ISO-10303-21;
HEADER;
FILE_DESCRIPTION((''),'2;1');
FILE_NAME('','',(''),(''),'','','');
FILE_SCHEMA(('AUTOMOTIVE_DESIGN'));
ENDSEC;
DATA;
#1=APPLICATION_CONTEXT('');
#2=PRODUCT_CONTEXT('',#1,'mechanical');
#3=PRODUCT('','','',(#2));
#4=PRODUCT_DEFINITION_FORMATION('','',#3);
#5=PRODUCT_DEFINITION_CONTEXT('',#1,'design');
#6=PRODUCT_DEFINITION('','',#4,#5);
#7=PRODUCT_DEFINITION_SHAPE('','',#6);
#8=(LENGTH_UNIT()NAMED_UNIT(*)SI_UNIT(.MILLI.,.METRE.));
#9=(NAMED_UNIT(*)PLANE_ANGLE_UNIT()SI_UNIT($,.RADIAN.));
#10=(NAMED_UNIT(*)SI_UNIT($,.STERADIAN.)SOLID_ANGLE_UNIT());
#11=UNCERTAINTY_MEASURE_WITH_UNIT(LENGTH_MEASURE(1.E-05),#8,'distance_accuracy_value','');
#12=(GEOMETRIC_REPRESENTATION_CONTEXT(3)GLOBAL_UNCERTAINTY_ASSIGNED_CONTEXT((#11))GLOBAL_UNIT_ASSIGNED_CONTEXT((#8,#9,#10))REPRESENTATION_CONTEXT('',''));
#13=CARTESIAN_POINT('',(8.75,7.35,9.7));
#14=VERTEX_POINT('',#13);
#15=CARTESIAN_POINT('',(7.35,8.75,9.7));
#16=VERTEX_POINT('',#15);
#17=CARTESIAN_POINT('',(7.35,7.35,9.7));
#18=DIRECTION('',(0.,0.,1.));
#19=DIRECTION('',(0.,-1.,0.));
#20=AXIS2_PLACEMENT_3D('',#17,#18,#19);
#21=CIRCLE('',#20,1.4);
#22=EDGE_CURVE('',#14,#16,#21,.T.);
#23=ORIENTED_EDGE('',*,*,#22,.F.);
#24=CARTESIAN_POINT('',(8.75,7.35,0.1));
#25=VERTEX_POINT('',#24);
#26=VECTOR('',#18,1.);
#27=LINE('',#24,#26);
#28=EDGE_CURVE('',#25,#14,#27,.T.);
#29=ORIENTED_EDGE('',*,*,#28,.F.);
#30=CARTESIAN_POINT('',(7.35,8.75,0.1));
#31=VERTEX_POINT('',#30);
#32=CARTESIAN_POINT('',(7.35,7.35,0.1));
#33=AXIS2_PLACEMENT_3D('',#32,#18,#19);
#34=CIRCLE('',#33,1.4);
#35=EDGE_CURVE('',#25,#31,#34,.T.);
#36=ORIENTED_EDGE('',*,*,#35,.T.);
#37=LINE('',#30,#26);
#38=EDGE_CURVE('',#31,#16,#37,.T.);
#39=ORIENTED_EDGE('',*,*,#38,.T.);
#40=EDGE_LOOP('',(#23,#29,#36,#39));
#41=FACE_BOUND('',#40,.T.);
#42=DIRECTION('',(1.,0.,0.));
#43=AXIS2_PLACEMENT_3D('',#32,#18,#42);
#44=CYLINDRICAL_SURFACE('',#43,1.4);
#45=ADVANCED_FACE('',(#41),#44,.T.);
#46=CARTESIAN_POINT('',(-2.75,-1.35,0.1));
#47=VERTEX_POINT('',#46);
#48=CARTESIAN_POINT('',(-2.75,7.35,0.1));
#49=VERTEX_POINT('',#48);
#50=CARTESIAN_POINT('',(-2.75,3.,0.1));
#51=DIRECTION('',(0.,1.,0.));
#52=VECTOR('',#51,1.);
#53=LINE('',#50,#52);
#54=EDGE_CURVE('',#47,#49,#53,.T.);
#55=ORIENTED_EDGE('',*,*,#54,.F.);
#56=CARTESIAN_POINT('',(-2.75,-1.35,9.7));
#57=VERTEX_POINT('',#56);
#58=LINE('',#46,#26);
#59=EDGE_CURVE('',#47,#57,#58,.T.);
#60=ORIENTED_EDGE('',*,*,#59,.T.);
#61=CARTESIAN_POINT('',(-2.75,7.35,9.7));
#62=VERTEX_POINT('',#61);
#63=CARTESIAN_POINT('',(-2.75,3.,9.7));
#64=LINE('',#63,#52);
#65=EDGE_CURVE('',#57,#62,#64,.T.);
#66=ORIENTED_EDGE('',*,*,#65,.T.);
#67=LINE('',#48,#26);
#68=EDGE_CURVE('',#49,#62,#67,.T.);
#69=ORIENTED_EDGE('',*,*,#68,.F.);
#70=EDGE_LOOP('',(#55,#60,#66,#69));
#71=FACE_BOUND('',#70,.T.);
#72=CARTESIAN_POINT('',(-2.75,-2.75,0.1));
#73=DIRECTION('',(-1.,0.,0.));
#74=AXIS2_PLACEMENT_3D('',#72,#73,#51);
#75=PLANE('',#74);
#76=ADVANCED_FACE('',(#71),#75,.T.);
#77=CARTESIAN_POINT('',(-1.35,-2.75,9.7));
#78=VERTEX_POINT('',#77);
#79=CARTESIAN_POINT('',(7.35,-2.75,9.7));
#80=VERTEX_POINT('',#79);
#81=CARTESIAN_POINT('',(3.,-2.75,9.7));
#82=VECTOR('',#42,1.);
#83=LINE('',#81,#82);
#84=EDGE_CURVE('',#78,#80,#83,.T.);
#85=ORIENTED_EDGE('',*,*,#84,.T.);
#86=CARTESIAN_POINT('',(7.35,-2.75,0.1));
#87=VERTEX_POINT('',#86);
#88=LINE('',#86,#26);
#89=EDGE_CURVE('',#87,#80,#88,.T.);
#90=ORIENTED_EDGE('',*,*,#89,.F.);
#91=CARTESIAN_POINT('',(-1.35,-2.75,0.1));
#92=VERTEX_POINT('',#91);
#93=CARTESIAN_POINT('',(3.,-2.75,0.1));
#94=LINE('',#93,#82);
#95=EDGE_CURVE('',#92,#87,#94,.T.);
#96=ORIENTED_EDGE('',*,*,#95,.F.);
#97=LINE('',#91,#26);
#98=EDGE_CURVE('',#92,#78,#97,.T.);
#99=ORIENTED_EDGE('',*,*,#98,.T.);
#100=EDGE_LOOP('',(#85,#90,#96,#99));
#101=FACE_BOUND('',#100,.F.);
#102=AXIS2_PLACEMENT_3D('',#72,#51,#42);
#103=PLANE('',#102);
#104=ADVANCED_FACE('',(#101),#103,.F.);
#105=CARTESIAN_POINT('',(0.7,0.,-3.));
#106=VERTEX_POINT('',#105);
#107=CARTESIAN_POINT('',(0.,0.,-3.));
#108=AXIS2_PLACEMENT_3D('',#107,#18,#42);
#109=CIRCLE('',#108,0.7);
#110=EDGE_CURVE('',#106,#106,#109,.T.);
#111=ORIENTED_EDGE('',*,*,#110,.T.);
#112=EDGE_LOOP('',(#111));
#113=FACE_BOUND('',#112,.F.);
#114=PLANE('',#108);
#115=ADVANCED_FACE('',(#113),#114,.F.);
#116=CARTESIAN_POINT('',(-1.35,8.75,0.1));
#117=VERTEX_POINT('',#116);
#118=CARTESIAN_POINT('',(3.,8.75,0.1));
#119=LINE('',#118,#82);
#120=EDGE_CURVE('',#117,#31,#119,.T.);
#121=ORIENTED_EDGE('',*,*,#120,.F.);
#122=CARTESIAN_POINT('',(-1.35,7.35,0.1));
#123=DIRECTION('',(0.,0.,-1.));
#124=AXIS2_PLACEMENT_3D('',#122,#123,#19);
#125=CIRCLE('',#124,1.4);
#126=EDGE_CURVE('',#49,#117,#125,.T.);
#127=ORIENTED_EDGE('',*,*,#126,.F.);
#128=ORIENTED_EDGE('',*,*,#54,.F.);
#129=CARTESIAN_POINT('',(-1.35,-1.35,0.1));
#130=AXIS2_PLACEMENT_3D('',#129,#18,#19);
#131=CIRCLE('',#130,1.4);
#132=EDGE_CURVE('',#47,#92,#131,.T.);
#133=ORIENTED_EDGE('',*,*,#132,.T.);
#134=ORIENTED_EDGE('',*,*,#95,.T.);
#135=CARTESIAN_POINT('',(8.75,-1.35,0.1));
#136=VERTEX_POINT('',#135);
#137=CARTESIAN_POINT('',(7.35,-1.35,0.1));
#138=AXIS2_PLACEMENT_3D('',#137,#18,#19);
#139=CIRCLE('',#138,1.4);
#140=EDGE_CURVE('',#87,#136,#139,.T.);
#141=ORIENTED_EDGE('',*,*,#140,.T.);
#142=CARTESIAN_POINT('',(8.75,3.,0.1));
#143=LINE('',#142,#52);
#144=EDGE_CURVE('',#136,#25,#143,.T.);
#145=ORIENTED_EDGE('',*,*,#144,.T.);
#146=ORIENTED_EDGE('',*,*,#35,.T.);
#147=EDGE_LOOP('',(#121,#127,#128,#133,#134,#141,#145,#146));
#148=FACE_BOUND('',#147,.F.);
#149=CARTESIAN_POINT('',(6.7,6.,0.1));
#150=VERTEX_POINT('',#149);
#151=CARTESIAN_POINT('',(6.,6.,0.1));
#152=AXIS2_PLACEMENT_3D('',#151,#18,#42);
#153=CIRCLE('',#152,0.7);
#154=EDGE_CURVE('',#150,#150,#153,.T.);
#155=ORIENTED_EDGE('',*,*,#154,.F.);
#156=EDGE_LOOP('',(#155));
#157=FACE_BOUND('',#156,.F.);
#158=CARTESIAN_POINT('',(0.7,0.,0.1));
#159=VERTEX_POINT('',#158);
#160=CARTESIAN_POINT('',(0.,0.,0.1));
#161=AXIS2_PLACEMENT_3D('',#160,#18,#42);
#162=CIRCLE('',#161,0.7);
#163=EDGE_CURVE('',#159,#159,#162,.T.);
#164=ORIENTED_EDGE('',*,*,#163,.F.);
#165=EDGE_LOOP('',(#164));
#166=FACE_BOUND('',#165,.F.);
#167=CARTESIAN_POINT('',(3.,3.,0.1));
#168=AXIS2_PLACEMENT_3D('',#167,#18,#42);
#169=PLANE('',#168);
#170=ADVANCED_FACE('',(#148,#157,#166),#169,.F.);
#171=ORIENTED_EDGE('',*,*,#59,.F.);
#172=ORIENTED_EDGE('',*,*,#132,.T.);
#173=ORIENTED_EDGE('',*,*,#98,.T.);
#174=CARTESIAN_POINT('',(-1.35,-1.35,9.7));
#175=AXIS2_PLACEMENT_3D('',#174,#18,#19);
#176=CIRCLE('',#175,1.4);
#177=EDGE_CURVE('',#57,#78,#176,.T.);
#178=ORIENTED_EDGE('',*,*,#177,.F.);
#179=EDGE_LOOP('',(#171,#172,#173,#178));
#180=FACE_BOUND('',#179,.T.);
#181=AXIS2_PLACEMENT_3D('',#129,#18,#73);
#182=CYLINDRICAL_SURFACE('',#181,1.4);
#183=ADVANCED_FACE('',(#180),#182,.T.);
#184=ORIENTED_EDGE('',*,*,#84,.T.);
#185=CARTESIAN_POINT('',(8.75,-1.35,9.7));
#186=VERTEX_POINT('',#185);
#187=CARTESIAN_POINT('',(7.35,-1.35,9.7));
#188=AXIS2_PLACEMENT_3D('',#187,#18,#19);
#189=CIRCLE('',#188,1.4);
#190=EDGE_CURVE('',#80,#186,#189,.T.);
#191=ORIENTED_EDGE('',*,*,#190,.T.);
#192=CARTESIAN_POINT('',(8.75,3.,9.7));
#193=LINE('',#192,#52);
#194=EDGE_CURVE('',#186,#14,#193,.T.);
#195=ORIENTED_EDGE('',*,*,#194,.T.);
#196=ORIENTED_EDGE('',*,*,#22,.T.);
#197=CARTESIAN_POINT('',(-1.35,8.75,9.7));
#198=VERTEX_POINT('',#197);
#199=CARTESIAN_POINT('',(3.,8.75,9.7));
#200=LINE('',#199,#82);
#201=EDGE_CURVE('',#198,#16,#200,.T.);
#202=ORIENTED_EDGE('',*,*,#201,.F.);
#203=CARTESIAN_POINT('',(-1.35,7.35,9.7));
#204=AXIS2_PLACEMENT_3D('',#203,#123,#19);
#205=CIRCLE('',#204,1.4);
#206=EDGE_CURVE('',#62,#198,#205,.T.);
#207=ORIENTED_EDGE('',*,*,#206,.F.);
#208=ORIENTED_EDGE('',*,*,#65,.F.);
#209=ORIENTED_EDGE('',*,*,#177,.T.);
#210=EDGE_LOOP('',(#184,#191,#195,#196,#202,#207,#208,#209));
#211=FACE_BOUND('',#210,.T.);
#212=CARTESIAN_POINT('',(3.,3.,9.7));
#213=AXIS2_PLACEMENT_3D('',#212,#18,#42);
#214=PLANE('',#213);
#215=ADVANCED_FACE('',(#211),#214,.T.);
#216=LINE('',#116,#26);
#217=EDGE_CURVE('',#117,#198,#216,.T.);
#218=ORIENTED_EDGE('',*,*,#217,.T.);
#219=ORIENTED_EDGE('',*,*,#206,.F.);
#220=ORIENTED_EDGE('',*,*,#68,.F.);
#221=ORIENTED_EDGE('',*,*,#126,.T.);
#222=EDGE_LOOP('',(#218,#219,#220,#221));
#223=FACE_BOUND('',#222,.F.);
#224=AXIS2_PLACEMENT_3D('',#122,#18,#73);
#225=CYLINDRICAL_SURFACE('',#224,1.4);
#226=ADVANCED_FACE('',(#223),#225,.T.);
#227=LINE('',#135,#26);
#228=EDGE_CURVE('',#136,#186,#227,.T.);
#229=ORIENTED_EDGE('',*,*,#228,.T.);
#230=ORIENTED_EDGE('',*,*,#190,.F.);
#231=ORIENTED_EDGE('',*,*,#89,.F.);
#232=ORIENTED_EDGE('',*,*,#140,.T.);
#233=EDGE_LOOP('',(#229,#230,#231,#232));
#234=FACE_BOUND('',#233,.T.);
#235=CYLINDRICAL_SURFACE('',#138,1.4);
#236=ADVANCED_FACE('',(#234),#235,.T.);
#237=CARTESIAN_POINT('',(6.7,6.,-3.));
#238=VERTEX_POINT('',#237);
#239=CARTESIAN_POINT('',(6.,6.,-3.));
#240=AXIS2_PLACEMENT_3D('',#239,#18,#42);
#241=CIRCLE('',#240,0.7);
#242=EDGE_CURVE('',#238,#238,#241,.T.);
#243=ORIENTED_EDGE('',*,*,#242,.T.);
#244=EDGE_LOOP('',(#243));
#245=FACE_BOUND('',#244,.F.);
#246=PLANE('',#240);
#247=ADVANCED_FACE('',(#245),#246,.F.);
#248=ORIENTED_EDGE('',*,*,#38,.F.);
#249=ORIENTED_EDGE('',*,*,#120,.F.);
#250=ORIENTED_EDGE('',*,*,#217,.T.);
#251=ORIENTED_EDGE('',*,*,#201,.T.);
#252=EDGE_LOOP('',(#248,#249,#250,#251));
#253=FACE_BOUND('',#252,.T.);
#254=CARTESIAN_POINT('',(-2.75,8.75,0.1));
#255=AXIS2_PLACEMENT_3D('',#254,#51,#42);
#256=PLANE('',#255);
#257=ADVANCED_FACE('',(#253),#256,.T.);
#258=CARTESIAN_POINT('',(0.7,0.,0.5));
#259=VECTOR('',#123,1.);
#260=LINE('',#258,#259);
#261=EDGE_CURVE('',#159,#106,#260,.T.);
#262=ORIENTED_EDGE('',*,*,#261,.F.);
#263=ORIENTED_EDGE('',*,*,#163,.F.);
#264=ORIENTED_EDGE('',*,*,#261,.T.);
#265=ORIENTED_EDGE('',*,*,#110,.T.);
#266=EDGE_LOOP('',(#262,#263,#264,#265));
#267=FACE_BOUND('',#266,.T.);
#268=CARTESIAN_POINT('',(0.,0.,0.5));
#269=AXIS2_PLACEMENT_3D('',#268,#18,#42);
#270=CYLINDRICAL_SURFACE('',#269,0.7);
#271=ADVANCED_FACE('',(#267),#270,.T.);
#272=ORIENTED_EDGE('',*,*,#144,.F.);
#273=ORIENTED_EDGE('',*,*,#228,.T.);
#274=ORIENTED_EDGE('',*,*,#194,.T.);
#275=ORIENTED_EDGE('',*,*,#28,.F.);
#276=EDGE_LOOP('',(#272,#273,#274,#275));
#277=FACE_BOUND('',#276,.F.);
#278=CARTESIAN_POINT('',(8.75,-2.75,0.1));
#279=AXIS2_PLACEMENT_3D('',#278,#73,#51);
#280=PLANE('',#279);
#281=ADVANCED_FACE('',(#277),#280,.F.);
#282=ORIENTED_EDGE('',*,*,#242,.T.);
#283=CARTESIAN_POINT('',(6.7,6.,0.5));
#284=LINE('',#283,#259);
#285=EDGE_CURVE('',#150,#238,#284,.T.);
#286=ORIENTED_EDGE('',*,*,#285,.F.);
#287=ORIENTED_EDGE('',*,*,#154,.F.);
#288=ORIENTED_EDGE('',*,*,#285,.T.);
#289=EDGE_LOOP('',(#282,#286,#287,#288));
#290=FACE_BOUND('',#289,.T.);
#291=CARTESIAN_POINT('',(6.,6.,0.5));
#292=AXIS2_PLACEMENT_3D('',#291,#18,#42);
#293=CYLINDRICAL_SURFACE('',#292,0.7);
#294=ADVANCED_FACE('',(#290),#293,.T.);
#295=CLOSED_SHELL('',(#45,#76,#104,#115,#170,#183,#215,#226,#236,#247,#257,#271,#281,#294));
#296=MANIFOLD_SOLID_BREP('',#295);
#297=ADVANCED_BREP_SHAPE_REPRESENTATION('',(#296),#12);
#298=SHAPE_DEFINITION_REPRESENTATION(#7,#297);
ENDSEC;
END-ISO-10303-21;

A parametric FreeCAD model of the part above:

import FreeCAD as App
import Part
import Sketcher
from FreeCAD import Vector


def edges_at(feature, points):
    """Names of the edges that pass closest to the given points."""
    edges = feature.Shape.Edges
    near = lambda p: min(range(len(edges)), key=lambda i: edges[i].distToShape(Part.Vertex(*p))[0])
    return sorted({f"Edge{near(p) + 1}" for p in points})


def add_polygon(sketch, points):
    """Adds a closed chain of lines whose ends are joined by coincident constraints."""
    first, n = sketch.GeometryCount, len(points)
    for a, b in zip(points, points[1:] + points[:1]):
        sketch.addGeometry(Part.LineSegment(App.Vector(*a, 0), App.Vector(*b, 0)), False)
    for i in range(n):
        sketch.addConstraint(Sketcher.Constraint("Coincident", first + i, 2, first + (i + 1) % n, 1))

doc = App.newDocument("Part")
params = doc.addObject("Spreadsheet::Sheet", "Params")
for row, (alias, value) in enumerate([
    ("sketch1_width", "11.5 mm"),
    ("pad1_length", "9.6 mm"),
    ("fillet_radius", "1.4 mm"),
    ("sketch2_diameter", "1.4 mm"),
    ("pad2_length", "3.5 mm"),
], start=1):
    params.set(f"A{row}", alias)
    params.set(f"B{row}", "=" + value)
    params.setAlias(f"B{row}", alias)

body = doc.addObject("PartDesign::Body", "Body")

# Sketch on XY plane
sketch1 = body.newObject("Sketcher::SketchObject", "Sketch")
sketch1.AttachmentSupport = (doc.getObject("XY_Plane"), [""])
sketch1.MapMode = "FlatFace"
sketch1.AttachmentOffset = App.Placement(Vector(0, 0, 0.1), App.Rotation())
add_polygon(sketch1, [(-3, 9), (-3, -3), (9, -3), (9, 9)])  # lines 0-3
sketch1.addConstraint([
    Sketcher.Constraint("Vertical", 0),
    Sketcher.Constraint("Horizontal", 1),
    Sketcher.Constraint("Vertical", 2),
    Sketcher.Constraint("Horizontal", 3),
    Sketcher.Constraint("Equal", 3, 0),
    Sketcher.Constraint("DistanceX", 1, 1, 1, 2, 11.5),
    Sketcher.Constraint("DistanceX", 0, 2, -1, 1, 2.75),
    Sketcher.Constraint("DistanceY", 0, 2, -1, 1, 2.75),
])
sketch1.setExpression("Constraints[9]", "Params.sketch1_width")
pad1 = body.newObject("PartDesign::Pad", "Pad")
pad1.Profile = sketch1
pad1.setExpression("Length", "Params.pad1_length")
doc.recompute()

fillet = body.newObject("PartDesign::Fillet", "Fillet")
fillet.Base = (pad1, edges_at(pad1, [
    (8.75, -2.75, 4.9),
    (8.75, 8.75, 4.9),
    (-2.75, -2.75, 4.9),
    (-2.75, 8.75, 4.9),
]))
fillet.setExpression("Radius", "Params.fillet_radius")
body2 = doc.addObject("PartDesign::Body", "Body001")
body2.AllowCompound = True

# Sketch on XY plane
sketch2 = body2.newObject("Sketcher::SketchObject", "Sketch001")
sketch2.AttachmentSupport = (doc.getObject("XY_Plane001"), [""])
sketch2.MapMode = "FlatFace"
sketch2.AttachmentOffset = App.Placement(Vector(0, 0, 0.5), App.Rotation())
sketch2.addGeometry([
    Part.Circle(Vector(0, 0, 0), Vector(0, 0, 1), 0.7),
    Part.Circle(Vector(6, 6, 0), Vector(0, 0, 1), 0.7),
], False)
sketch2.addConstraint([
    Sketcher.Constraint("Coincident", 0, 3, -1, 1),
    Sketcher.Constraint("Equal", 0, 1),
    Sketcher.Constraint("Diameter", 0, 1.4),
    Sketcher.Constraint("DistanceX", -1, 1, 1, 3, 6.0),
    Sketcher.Constraint("DistanceY", -1, 1, 1, 3, 6.0),
])
sketch2.setExpression("Constraints[2]", "Params.sketch2_diameter")
pad2 = body2.newObject("PartDesign::Pad", "Pad001")
pad2.Profile = sketch2
pad2.setExpression("Length", "Params.pad2_length")
pad2.Reversed = True
doc.recompute()

boolean = body2.newObject("PartDesign::Boolean", "Boolean")
boolean.Type = "Fuse"
boolean.addObjects([body])

doc.recompute()
